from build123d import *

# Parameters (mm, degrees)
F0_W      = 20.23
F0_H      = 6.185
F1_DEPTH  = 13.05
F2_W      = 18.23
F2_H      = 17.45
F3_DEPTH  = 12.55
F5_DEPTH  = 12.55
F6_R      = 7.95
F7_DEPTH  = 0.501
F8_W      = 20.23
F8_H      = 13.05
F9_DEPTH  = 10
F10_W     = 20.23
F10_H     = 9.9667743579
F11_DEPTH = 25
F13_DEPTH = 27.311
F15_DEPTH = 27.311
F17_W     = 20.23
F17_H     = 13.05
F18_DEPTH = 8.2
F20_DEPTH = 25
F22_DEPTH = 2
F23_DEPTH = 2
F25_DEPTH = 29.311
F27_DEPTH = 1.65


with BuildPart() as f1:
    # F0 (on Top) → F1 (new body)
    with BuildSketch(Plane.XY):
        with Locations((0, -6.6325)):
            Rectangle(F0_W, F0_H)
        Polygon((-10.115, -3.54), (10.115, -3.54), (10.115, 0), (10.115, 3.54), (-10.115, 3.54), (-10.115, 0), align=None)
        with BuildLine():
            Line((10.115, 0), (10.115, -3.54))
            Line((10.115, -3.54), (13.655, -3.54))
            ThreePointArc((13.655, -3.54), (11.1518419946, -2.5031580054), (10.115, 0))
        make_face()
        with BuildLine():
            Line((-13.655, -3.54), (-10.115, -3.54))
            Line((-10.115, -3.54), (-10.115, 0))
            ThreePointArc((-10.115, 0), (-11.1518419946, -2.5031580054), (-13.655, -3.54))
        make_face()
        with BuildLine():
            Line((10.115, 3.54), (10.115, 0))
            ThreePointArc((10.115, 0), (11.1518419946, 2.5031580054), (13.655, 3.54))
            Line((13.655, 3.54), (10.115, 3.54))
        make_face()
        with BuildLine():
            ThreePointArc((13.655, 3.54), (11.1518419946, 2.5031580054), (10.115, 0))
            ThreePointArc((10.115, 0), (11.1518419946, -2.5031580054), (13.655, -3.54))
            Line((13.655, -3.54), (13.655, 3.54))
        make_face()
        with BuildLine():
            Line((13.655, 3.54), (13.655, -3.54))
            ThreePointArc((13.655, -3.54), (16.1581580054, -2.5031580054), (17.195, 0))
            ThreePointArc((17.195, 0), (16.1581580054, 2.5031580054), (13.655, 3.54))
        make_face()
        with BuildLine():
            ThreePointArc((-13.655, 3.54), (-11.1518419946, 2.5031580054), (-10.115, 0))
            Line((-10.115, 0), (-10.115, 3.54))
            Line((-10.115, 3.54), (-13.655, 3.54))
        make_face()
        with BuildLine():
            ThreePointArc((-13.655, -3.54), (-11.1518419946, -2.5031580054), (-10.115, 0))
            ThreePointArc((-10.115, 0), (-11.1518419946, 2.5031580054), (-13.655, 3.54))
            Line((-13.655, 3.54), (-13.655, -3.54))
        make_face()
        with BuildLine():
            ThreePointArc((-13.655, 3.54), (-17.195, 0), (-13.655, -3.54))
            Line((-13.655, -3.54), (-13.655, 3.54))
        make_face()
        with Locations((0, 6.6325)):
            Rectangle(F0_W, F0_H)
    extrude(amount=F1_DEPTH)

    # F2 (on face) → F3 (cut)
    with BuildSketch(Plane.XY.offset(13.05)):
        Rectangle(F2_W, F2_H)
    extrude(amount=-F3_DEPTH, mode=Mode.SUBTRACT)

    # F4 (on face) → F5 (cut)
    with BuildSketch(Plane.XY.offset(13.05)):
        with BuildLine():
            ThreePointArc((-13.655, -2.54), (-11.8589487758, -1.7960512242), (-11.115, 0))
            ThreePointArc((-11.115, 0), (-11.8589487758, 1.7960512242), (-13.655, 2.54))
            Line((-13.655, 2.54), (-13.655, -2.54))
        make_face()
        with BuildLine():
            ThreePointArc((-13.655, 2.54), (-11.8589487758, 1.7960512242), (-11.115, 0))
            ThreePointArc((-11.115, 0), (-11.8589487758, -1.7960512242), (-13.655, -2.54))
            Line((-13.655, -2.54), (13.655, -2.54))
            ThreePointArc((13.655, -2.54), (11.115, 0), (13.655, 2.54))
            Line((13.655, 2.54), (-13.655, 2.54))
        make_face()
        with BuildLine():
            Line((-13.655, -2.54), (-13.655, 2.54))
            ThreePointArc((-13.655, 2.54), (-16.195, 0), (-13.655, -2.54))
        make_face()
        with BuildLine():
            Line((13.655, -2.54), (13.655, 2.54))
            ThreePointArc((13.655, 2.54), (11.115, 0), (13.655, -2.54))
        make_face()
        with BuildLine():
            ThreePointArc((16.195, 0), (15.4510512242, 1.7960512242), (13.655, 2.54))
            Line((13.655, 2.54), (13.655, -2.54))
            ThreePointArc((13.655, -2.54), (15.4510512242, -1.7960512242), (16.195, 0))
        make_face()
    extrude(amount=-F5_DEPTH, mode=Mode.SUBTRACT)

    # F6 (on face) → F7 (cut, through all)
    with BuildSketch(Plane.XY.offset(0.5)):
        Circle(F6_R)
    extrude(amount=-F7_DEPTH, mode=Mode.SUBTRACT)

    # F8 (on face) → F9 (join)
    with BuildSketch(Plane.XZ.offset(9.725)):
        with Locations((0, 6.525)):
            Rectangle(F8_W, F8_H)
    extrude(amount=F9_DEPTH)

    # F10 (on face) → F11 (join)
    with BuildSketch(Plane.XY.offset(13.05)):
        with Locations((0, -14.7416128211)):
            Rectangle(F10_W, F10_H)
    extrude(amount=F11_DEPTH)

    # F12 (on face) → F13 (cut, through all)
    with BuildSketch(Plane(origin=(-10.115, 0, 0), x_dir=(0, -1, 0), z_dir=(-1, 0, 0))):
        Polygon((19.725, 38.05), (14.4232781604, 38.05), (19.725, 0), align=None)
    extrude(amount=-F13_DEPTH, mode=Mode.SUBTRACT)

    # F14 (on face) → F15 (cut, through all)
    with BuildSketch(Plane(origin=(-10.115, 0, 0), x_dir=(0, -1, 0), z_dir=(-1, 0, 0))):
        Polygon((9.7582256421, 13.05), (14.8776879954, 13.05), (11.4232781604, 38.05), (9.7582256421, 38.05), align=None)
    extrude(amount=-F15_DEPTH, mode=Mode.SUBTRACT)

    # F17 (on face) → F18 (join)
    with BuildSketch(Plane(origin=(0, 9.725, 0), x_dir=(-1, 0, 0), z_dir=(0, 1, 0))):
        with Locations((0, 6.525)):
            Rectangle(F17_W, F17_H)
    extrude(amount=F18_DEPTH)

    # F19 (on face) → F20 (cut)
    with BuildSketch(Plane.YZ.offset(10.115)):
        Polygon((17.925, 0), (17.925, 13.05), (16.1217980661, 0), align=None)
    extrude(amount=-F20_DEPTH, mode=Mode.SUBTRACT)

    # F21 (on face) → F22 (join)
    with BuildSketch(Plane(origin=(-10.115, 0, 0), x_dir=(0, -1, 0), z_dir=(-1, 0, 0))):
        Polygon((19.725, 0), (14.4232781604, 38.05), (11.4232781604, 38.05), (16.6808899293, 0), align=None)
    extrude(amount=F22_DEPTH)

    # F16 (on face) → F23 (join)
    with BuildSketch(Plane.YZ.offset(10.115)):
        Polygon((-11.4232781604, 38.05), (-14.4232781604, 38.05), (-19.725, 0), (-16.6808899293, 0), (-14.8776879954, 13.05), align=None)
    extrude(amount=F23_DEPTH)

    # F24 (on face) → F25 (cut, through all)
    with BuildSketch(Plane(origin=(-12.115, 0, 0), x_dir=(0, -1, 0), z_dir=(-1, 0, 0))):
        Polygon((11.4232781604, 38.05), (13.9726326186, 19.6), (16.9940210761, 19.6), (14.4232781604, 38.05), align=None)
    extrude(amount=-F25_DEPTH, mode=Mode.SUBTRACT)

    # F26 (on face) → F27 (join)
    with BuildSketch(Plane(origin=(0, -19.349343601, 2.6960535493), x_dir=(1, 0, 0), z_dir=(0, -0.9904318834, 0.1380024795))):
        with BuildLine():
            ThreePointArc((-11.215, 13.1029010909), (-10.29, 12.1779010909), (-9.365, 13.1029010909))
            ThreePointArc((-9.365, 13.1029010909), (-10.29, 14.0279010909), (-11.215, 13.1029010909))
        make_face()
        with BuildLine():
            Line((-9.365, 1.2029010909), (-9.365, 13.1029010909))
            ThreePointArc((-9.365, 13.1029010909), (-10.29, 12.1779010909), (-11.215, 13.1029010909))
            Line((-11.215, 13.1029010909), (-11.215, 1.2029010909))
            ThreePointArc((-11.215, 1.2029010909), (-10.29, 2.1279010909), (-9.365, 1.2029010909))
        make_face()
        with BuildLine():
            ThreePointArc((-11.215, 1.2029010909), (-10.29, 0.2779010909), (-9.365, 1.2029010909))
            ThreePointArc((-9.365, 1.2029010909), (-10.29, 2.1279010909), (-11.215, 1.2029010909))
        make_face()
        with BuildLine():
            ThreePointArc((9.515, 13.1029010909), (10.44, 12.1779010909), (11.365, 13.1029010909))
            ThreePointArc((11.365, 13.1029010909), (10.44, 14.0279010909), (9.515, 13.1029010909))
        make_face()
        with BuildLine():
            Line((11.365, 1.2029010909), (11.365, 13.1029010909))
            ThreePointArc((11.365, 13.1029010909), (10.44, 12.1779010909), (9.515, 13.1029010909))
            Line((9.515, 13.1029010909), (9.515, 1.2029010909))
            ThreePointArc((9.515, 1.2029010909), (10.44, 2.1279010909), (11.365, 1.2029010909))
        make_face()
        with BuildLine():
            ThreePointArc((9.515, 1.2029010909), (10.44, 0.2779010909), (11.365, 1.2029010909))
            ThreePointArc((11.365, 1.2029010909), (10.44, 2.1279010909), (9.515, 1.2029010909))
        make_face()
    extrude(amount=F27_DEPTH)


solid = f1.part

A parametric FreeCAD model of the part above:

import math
import FreeCAD as App
import Part
import Sketcher
Q = App.Units.Quantity


def add_polygon(sketch, points):
    """Adds a closed chain of lines whose ends are joined by coincident constraints."""
    first, n = sketch.GeometryCount, len(points)
    for a, b in zip(points, points[1:] + points[:1]):
        sketch.addGeometry(Part.LineSegment(App.Vector(*a, 0), App.Vector(*b, 0)), False)
    for i in range(n):
        sketch.addConstraint(Sketcher.Constraint("Coincident", first + i, 2, first + (i + 1) % n, 1))

doc = App.newDocument("Part")
params = doc.addObject("Spreadsheet::Sheet", "Params")
for row, (alias, value) in enumerate([
    ("sketch1_radius", "3.54 mm"),
    ("sketch1_width", "20.23 mm"),
    ("sketch1_width2", "3.54 mm"),
    ("pad1_length", "13.05 mm"),
    ("sketch2_width", "18.23 mm"),
    ("sketch2_height", "17.45 mm"),
    ("pocket1_length", "12.55 mm"),
    ("sketch3_radius", "2.54 mm"),
    ("sketch3_width", "27.31 mm"),
    ("pocket2_length", "12.55 mm"),
    ("sketch4_diameter", "15.9 mm"),
    ("sketch5_width", "20.23 mm"),
    ("sketch5_height", "13.05 mm"),
    ("pad2_length", "10 mm"),
    ("sketch6_width", "20.23 mm"),
    ("pad3_length", "25 mm"),
    ("sketch7_height", "38.05 mm"),
    ("sketch8_height", "25 mm"),
    ("sketch9_width", "20.23 mm"),
    ("sketch9_height", "13.05 mm"),
    ("pad4_length", "8.2 mm"),
    ("sketch10_height", "13.05 mm"),
    ("pocket6_length", "25 mm"),
    ("sketch11_width", "3 mm"),
    ("pad5_length", "2 mm"),
    ("sketch12_width", "3 mm"),
    ("pad6_length", "2 mm"),
    ("sketch13_width", "3 mm"),
    ("sketch14_height", "11.9 mm"),
    ("pad7_length", "1.65 mm"),
], start=1):
    params.set(f"A{row}", alias)
    params.set(f"B{row}", "=" + value)
    params.setAlias(f"B{row}", alias)

body = doc.addObject("PartDesign::Body", "Body")

# Sketch on XY plane
sketch1 = body.newObject("Sketcher::SketchObject", "Sketch")
sketch1.AttachmentSupport = (doc.getObject("XY_Plane"), [""])
sketch1.MapMode = "FlatFace"
sketch1.addGeometry(Part.LineSegment(App.Vector(-10.1, -9.7, 0), App.Vector(10.1, -9.7, 0)), False)
sketch1.addGeometry(Part.LineSegment(App.Vector(10.1, -9.7, 0), App.Vector(10.1, -3.5, 0)), False)
sketch1.addGeometry(Part.LineSegment(App.Vector(10.1, -3.5, 0), App.Vector(13.7, -3.5, 0)), False)
sketch1.addGeometry(Part.ArcOfCircle(Part.Circle(App.Vector(13.7, 0, 0), App.Vector(0, 0, 1), 3.5), math.radians(-90), math.radians(90)), False)
sketch1.addGeometry(Part.LineSegment(App.Vector(13.7, 3.5, 0), App.Vector(10.1, 3.5, 0)), False)
sketch1.addGeometry(Part.LineSegment(App.Vector(10.1, 3.5, 0), App.Vector(10.1, 9.7, 0)), False)
sketch1.addGeometry(Part.LineSegment(App.Vector(10.1, 9.7, 0), App.Vector(-10.1, 9.7, 0)), False)
sketch1.addGeometry(Part.LineSegment(App.Vector(-10.1, 9.7, 0), App.Vector(-10.1, 3.5, 0)), False)
sketch1.addGeometry(Part.LineSegment(App.Vector(-10.1, 3.5, 0), App.Vector(-13.7, 3.5, 0)), False)
sketch1.addGeometry(Part.ArcOfCircle(Part.Circle(App.Vector(-13.7, 0, 0), App.Vector(0, 0, 1), 3.5), math.radians(90), math.radians(270)), False)
sketch1.addGeometry(Part.LineSegment(App.Vector(-13.7, -3.5, 0), App.Vector(-10.1, -3.5, 0)), False)
sketch1.addGeometry(Part.LineSegment(App.Vector(-10.1, -3.5, 0), App.Vector(-10.1, -9.7, 0)), False)
sketch1.addConstraint(Sketcher.Constraint("Coincident", 0, 2, 1, 1))
sketch1.addConstraint(Sketcher.Constraint("Coincident", 1, 2, 2, 1))
sketch1.addConstraint(Sketcher.Constraint("Tangent", 2, 2, 3, 1))
sketch1.addConstraint(Sketcher.Constraint("Tangent", 3, 2, 4, 1))
sketch1.addConstraint(Sketcher.Constraint("Coincident", 4, 2, 5, 1))
sketch1.addConstraint(Sketcher.Constraint("Coincident", 5, 2, 6, 1))
sketch1.addConstraint(Sketcher.Constraint("Coincident", 6, 2, 7, 1))
sketch1.addConstraint(Sketcher.Constraint("Coincident", 7, 2, 8, 1))
sketch1.addConstraint(Sketcher.Constraint("Tangent", 8, 2, 9, 1))
sketch1.addConstraint(Sketcher.Constraint("Tangent", 9, 2, 10, 1))
sketch1.addConstraint(Sketcher.Constraint("Coincident", 10, 2, 11, 1))
sketch1.addConstraint(Sketcher.Constraint("Coincident", 11, 2, 0, 1))
sketch1.addConstraint(Sketcher.Constraint("Horizontal", 0))
sketch1.addConstraint(Sketcher.Constraint("Vertical", 1))
sketch1.addConstraint(Sketcher.Constraint("Horizontal", 2))
sketch1.addConstraint(Sketcher.Constraint("Horizontal", 4))
sketch1.addConstraint(Sketcher.Constraint("Vertical", 5))
sketch1.addConstraint(Sketcher.Constraint("Horizontal", 6))
sketch1.addConstraint(Sketcher.Constraint("Vertical", 7))
sketch1.addConstraint(Sketcher.Constraint("Horizontal", 8))
sketch1.addConstraint(Sketcher.Constraint("Horizontal", 10))
sketch1.addConstraint(Sketcher.Constraint("Vertical", 11))
sketch1.addConstraint(Sketcher.Constraint("Equal", 3, 9))
sketch1.addConstraint(Sketcher.Constraint("Symmetric", 3, 3, 9, 3, -1, 1))
sketch1.addConstraint(Sketcher.Constraint("Symmetric", 0, 2, 6, 2, -1, 1))
sketch1.addConstraint(Sketcher.Constraint("Symmetric", 4, 2, 7, 2, -2))
sketch1.addConstraint(Sketcher.Constraint("Vertical", 7, 2, 10, 2))
sketch1.addConstraint(Sketcher.Constraint("Radius", 3, Q("3.54 mm")))
sketch1.addConstraint(Sketcher.Constraint("DistanceX", 0, 1, 0, 2, Q("20.23 mm")))
sketch1.addConstraint(Sketcher.Constraint("DistanceX", 2, 1, 2, 2, Q("3.54 mm")))
sketch1.addConstraint(Sketcher.Constraint("DistanceY", 1, 1, 1, 2, Q("6.185 mm")))
sketch1.setExpression("Constraints[27]", "Params.sketch1_radius")
sketch1.setExpression("Constraints[28]", "Params.sketch1_width")
sketch1.setExpression("Constraints[29]", "Params.sketch1_width2")
pad1 = body.newObject("PartDesign::Pad", "Pad")
pad1.Profile = sketch1
pad1.setExpression("Length", "Params.pad1_length")

# Sketch on XY plane
sketch2 = body.newObject("Sketcher::SketchObject", "Sketch001")
sketch2.AttachmentSupport = (doc.getObject("XY_Plane"), [""])
sketch2.MapMode = "FlatFace"
sketch2.AttachmentOffset = App.Placement(App.Vector(0, 0, 13.05), App.Rotation())
add_polygon(sketch2, [(-9, 9), (-9, -9), (9, -9), (9, 9)])  # lines 0-3
sketch2.addConstraint(Sketcher.Constraint("Vertical", 0))
sketch2.addConstraint(Sketcher.Constraint("Horizontal", 1))
sketch2.addConstraint(Sketcher.Constraint("Vertical", 2))
sketch2.addConstraint(Sketcher.Constraint("Horizontal", 3))
sketch2.addConstraint(Sketcher.Constraint("Symmetric", 0, 2, 2, 2, -1, 1))
sketch2.addConstraint(Sketcher.Constraint("DistanceX", 1, 1, 1, 2, Q("18.23 mm")))
sketch2.addConstraint(Sketcher.Constraint("DistanceY", 0, 2, 0, 1, Q("17.45 mm")))
sketch2.setExpression("Constraints[9]", "Params.sketch2_width")
sketch2.setExpression("Constraints[10]", "Params.sketch2_height")
pocket1 = body.newObject("PartDesign::Pocket", "Pocket")
pocket1.Profile = sketch2
pocket1.setExpression("Length", "Params.pocket1_length")

# Sketch on XY plane
sketch3 = body.newObject("Sketcher::SketchObject", "Sketch002")
sketch3.AttachmentSupport = (doc.getObject("XY_Plane"), [""])
sketch3.MapMode = "FlatFace"
sketch3.AttachmentOffset = App.Placement(App.Vector(0, 0, 13.05), App.Rotation())
sketch3.addGeometry(Part.LineSegment(App.Vector(-13.7, -2.5, 0), App.Vector(13.7, -2.5, 0)), False)
sketch3.addGeometry(Part.ArcOfCircle(Part.Circle(App.Vector(13.7, 0, 0), App.Vector(0, 0, 1), 2.5), math.radians(-90), math.radians(0)), False)
sketch3.addGeometry(Part.ArcOfCircle(Part.Circle(App.Vector(13.7, 0, 0), App.Vector(0, 0, 1), 2.5), math.radians(0), math.radians(90)), False)
sketch3.addGeometry(Part.LineSegment(App.Vector(13.7, 2.5, 0), App.Vector(-13.7, 2.5, 0)), False)
sketch3.addGeometry(Part.ArcOfCircle(Part.Circle(App.Vector(-13.7, 0, 0), App.Vector(0, 0, 1), 2.5), math.radians(90), math.radians(270)), False)
sketch3.addConstraint(Sketcher.Constraint("Tangent", 0, 2, 1, 1))
sketch3.addConstraint(Sketcher.Constraint("Tangent", 1, 2, 2, 1))
sketch3.addConstraint(Sketcher.Constraint("Tangent", 2, 2, 3, 1))
sketch3.addConstraint(Sketcher.Constraint("Tangent", 3, 2, 4, 1))
sketch3.addConstraint(Sketcher.Constraint("Tangent", 4, 2, 0, 1))
sketch3.addConstraint(Sketcher.Constraint("Horizontal", 0))
sketch3.addConstraint(Sketcher.Constraint("Horizontal", 3))
sketch3.addConstraint(Sketcher.Constraint("Equal", 1, 2))
sketch3.addConstraint(Sketcher.Constraint("Symmetric", 1, 3, 4, 3, -1, 1))
sketch3.addConstraint(Sketcher.Constraint("PointOnObject", 1, 2, -1))
sketch3.addConstraint(Sketcher.Constraint("Radius", 1, Q("2.54 mm")))
sketch3.addConstraint(Sketcher.Constraint("DistanceX", 0, 1, 0, 2, Q("27.31 mm")))
sketch3.setExpression("Constraints[10]", "Params.sketch3_radius")
sketch3.setExpression("Constraints[11]", "Params.sketch3_width")
pocket2 = body.newObject("PartDesign::Pocket", "Pocket001")
pocket2.Profile = sketch3
pocket2.setExpression("Length", "Params.pocket2_length")

# Sketch on XY plane
sketch4 = body.newObject("Sketcher::SketchObject", "Sketch003")
sketch4.AttachmentSupport = (doc.getObject("XY_Plane"), [""])
sketch4.MapMode = "FlatFace"
sketch4.AttachmentOffset = App.Placement(App.Vector(0, 0, 0.5), App.Rotation())
sketch4.addGeometry(Part.Circle(App.Vector(0, 0, 0), App.Vector(0, 0, 1), 8), False)
sketch4.addConstraint(Sketcher.Constraint("Coincident", 0, 3, -1, 1))
sketch4.addConstraint(Sketcher.Constraint("Diameter", 0, Q("15.9 mm")))
sketch4.setExpression("Constraints[1]", "Params.sketch4_diameter")
pocket3 = body.newObject("PartDesign::Pocket", "Pocket002")
pocket3.Profile = sketch4
pocket3.Type = "ThroughAll"

# Sketch on XZ plane
sketch5 = body.newObject("Sketcher::SketchObject", "Sketch004")
sketch5.AttachmentSupport = (doc.getObject("XZ_Plane"), [""])
sketch5.MapMode = "FlatFace"
sketch5.AttachmentOffset = App.Placement(App.Vector(0, 0, 9.725), App.Rotation())
add_polygon(sketch5, [(-10, 13), (-10, 0), (10, 0), (10, 13)])  # lines 0-3
sketch5.addConstraint(Sketcher.Constraint("Vertical", 0))
sketch5.addConstraint(Sketcher.Constraint("Horizontal", 1))
sketch5.addConstraint(Sketcher.Constraint("Vertical", 2))
sketch5.addConstraint(Sketcher.Constraint("Horizontal", 3))
sketch5.addConstraint(Sketcher.Constraint("Symmetric", 0, 2, 1, 2, -1, 1))
sketch5.addConstraint(Sketcher.Constraint("DistanceX", 1, 1, 1, 2, Q("20.23 mm")))
sketch5.addConstraint(Sketcher.Constraint("DistanceY", 0, 2, 0, 1, Q("13.05 mm")))
sketch5.setExpression("Constraints[9]", "Params.sketch5_width")
sketch5.setExpression("Constraints[10]", "Params.sketch5_height")
pad2 = body.newObject("PartDesign::Pad", "Pad001")
pad2.Profile = sketch5
pad2.setExpression("Length", "Params.pad2_length")

# Sketch on XY plane
sketch6 = body.newObject("Sketcher::SketchObject", "Sketch005")
sketch6.AttachmentSupport = (doc.getObject("XY_Plane"), [""])
sketch6.MapMode = "FlatFace"
sketch6.AttachmentOffset = App.Placement(App.Vector(0, 0, 13.05), App.Rotation())
add_polygon(sketch6, [(-10, -10), (-10, -20), (10, -20), (10, -10)])  # lines 0-3
sketch6.addConstraint(Sketcher.Constraint("Vertical", 0))
sketch6.addConstraint(Sketcher.Constraint("Horizontal", 1))
sketch6.addConstraint(Sketcher.Constraint("Vertical", 2))
sketch6.addConstraint(Sketcher.Constraint("Horizontal", 3))
sketch6.addConstraint(Sketcher.Constraint("DistanceX", 1, 1, 1, 2, Q("20.23 mm")))
sketch6.addConstraint(Sketcher.Constraint("DistanceX", 0, 2, -1, 1, Q("10.115 mm")))
sketch6.addConstraint(Sketcher.Constraint("DistanceY", 0, 2, -1, 1, Q("19.725 mm")))
sketch6.addConstraint(Sketcher.Constraint("DistanceY", 0, 2, 0, 1, Q("9.966774 mm")))
sketch6.setExpression("Constraints[8]", "Params.sketch6_width")
pad3 = body.newObject("PartDesign::Pad", "Pad002")
pad3.Profile = sketch6
pad3.setExpression("Length", "Params.pad3_length")

# Sketch on YZ plane
sketch7 = body.newObject("Sketcher::SketchObject", "Sketch006")
sketch7.AttachmentSupport = (doc.getObject("YZ_Plane"), [""])
sketch7.MapMode = "FlatFace"
sketch7.AttachmentOffset = App.Placement(App.Vector(0, 0, -10.115), App.Rotation())
add_polygon(sketch7, [(-20, 38), (-14, 38), (-20, 0)])  # lines 0-2
sketch7.addConstraint(Sketcher.Constraint("Horizontal", 0))
sketch7.addConstraint(Sketcher.Constraint("Vertical", 2))
sketch7.addConstraint(Sketcher.Constraint("PointOnObject", 1, 2, -1))
sketch7.addConstraint(Sketcher.Constraint("DistanceY", 2, 1, 2, 2, Q("38.05 mm")))
sketch7.addConstraint(Sketcher.Constraint("DistanceX", 1, 2, -1, 1, Q("19.725 mm")))
sketch7.addConstraint(Sketcher.Constraint("DistanceX", 0, 1, 0, 2, Q("5.301722 mm")))
sketch7.setExpression("Constraints[6]", "Params.sketch7_height")
pocket4 = body.newObject("PartDesign::Pocket", "Pocket003")
pocket4.Profile = sketch7
pocket4.Type = "ThroughAll"
pocket4.Reversed = True

# Sketch on YZ plane
sketch8 = body.newObject("Sketcher::SketchObject", "Sketch007")
sketch8.AttachmentSupport = (doc.getObject("YZ_Plane"), [""])
sketch8.MapMode = "FlatFace"
sketch8.AttachmentOffset = App.Placement(App.Vector(0, 0, -10.115), App.Rotation())
add_polygon(sketch8, [(-9.8, 13.1), (-14.9, 13.1), (-11.4, 38), (-9.8, 38)])  # lines 0-3
sketch8.addConstraint(Sketcher.Constraint("Horizontal", 0))
sketch8.addConstraint(Sketcher.Constraint("Horizontal", 2))
sketch8.addConstraint(Sketcher.Constraint("Vertical", 3))
sketch8.addConstraint(Sketcher.Constraint("DistanceY", 3, 2, 3, 1, Q("25 mm")))
sketch8.addConstraint(Sketcher.Constraint("DistanceY", -1, 1, 0, 2, Q("13.05 mm")))
sketch8.addConstraint(Sketcher.Constraint("Distance", 1, Q("25.237531 mm")))
sketch8.addConstraint(Sketcher.Constraint("DistanceX", 0, 2, 0, 1, Q("5.119462 mm")))
sketch8.addConstraint(Sketcher.Constraint("DistanceX", 1, 2, -1, 1, Q("11.423278 mm")))
sketch8.setExpression("Constraints[7]", "Params.sketch8_height")
pocket5 = body.newObject("PartDesign::Pocket", "Pocket004")
pocket5.Profile = sketch8
pocket5.Type = "ThroughAll"
pocket5.Reversed = True

# Sketch on XZ plane
sketch9 = body.newObject("Sketcher::SketchObject", "Sketch008")
sketch9.AttachmentSupport = (doc.getObject("XZ_Plane"), [""])
sketch9.MapMode = "FlatFace"
sketch9.AttachmentOffset = App.Placement(App.Vector(0, 0, -9.725), App.Rotation())
add_polygon(sketch9, [(10, 13), (10, 0), (-10, 0), (-10, 13)])  # lines 0-3
sketch9.addConstraint(Sketcher.Constraint("Vertical", 0))
sketch9.addConstraint(Sketcher.Constraint("Horizontal", 1))
sketch9.addConstraint(Sketcher.Constraint("Vertical", 2))
sketch9.addConstraint(Sketcher.Constraint("Horizontal", 3))
sketch9.addConstraint(Sketcher.Constraint("Symmetric", 0, 2, 1, 2, -1, 1))
sketch9.addConstraint(Sketcher.Constraint("DistanceX", 1, 2, 1, 1, Q("20.23 mm")))
sketch9.addConstraint(Sketcher.Constraint("DistanceY", 0, 2, 0, 1, Q("13.05 mm")))
sketch9.setExpression("Constraints[9]", "Params.sketch9_width")
sketch9.setExpression("Constraints[10]", "Params.sketch9_height")
pad4 = body.newObject("PartDesign::Pad", "Pad003")
pad4.Profile = sketch9
pad4.setExpression("Length", "Params.pad4_length")
pad4.Reversed = True

# Sketch on YZ plane
sketch10 = body.newObject("Sketcher::SketchObject", "Sketch009")
sketch10.AttachmentSupport = (doc.getObject("YZ_Plane"), [""])
sketch10.MapMode = "FlatFace"
sketch10.AttachmentOffset = App.Placement(App.Vector(0, 0, 10.115), App.Rotation())
add_polygon(sketch10, [(17.9, 0), (17.9, 13.1), (16.1, 0)])  # lines 0-2
sketch10.addConstraint(Sketcher.Constraint("Vertical", 0))
sketch10.addConstraint(Sketcher.Constraint("Horizontal", 2))
sketch10.addConstraint(Sketcher.Constraint("PointOnObject", 1, 2, -1))
sketch10.addConstraint(Sketcher.Constraint("DistanceY", 0, 1, 0, 2, Q("13.05 mm")))
sketch10.addConstraint(Sketcher.Constraint("DistanceX", 2, 1, 2, 2, Q("1.803202 mm")))
sketch10.addConstraint(Sketcher.Constraint("DistanceX", -1, 1, 0, 2, Q("17.925 mm")))
sketch10.setExpression("Constraints[6]", "Params.sketch10_height")
pocket6 = body.newObject("PartDesign::Pocket", "Pocket005")
pocket6.Profile = sketch10
pocket6.setExpression("Length", "Params.pocket6_length")

# Sketch on YZ plane
sketch11 = body.newObject("Sketcher::SketchObject", "Sketch010")
sketch11.AttachmentSupport = (doc.getObject("YZ_Plane"), [""])
sketch11.MapMode = "FlatFace"
sketch11.AttachmentOffset = App.Placement(App.Vector(0, 0, -10.115), App.Rotation())
add_polygon(sketch11, [(-19.7, 0), (-14.4, 38), (-11.4, 38), (-16.7, 0)])  # lines 0-3
sketch11.addConstraint(Sketcher.Constraint("Horizontal", 1))
sketch11.addConstraint(Sketcher.Constraint("Horizontal", 3))
sketch11.addConstraint(Sketcher.Constraint("PointOnObject", 2, 2, -1))
sketch11.addConstraint(Sketcher.Constraint("DistanceX", 1, 1, 1, 2, Q("3 mm")))
sketch11.addConstraint(Sketcher.Constraint("DistanceY", -1, 1, 0, 2, Q("38.05 mm")))
sketch11.addConstraint(Sketcher.Constraint("DistanceX", 3, 2, -1, 1, Q("19.725 mm")))
sketch11.addConstraint(Sketcher.Constraint("DistanceX", 3, 2, 3, 1, Q("3.04411 mm")))
sketch11.addConstraint(Sketcher.Constraint("Distance", 2, Q("38.411521 mm")))
sketch11.setExpression("Constraints[7]", "Params.sketch11_width")
pad5 = body.newObject("PartDesign::Pad", "Pad004")
pad5.Profile = sketch11
pad5.setExpression("Length", "Params.pad5_length")
pad5.Reversed = True

# Sketch on YZ plane
sketch12 = body.newObject("Sketcher::SketchObject", "Sketch011")
sketch12.AttachmentSupport = (doc.getObject("YZ_Plane"), [""])
sketch12.MapMode = "FlatFace"
sketch12.AttachmentOffset = App.Placement(App.Vector(0, 0, 10.115), App.Rotation())
add_polygon(sketch12, [(-11.4, 38), (-14.4, 38), (-19.7, 0), (-16.7, 0), (-14.9, 13.1)])  # lines 0-4
sketch12.addConstraint(Sketcher.Constraint("Horizontal", 0))
sketch12.addConstraint(Sketcher.Constraint("Horizontal", 2))
sketch12.addConstraint(Sketcher.Constraint("PointOnObject", 1, 2, -1))
sketch12.addConstraint(Sketcher.Constraint("Parallel", 3, 4))
sketch12.addConstraint(Sketcher.Constraint("DistanceX", 0, 2, 0, 1, Q("3 mm")))
sketch12.addConstraint(Sketcher.Constraint("DistanceY", 3, 2, 0, 2, Q("25 mm")))
sketch12.addConstraint(Sketcher.Constraint("DistanceY", -1, 1, 0, 2, Q("38.05 mm")))
sketch12.addConstraint(Sketcher.Constraint("DistanceX", 1, 2, -1, 1, Q("19.725 mm")))
sketch12.addConstraint(Sketcher.Constraint("DistanceX", 2, 1, 2, 2, Q("3.04411 mm")))
sketch12.addConstraint(Sketcher.Constraint("DistanceX", 2, 2, 3, 2, Q("1.803202 mm")))
sketch12.setExpression("Constraints[9]", "Params.sketch12_width")
pad6 = body.newObject("PartDesign::Pad", "Pad005")
pad6.Profile = sketch12
pad6.setExpression("Length", "Params.pad6_length")

# Sketch on YZ plane
sketch13 = body.newObject("Sketcher::SketchObject", "Sketch012")
sketch13.AttachmentSupport = (doc.getObject("YZ_Plane"), [""])
sketch13.MapMode = "FlatFace"
sketch13.AttachmentOffset = App.Placement(App.Vector(0, 0, -12.115), App.Rotation())
add_polygon(sketch13, [(-11.4, 38), (-14, 19.6), (-17, 19.6), (-14.4, 38)])  # lines 0-3
sketch13.addConstraint(Sketcher.Constraint("Horizontal", 1))
sketch13.addConstraint(Sketcher.Constraint("Horizontal", 3))
sketch13.addConstraint(Sketcher.Constraint("DistanceX", 3, 1, 3, 2, Q("3 mm")))
sketch13.addConstraint(Sketcher.Constraint("DistanceY", -1, 1, 0, 2, Q("19.6 mm")))
sketch13.addConstraint(Sketcher.Constraint("DistanceY", -1, 1, 2, 2, Q("38.05 mm")))
sketch13.addConstraint(Sketcher.Constraint("DistanceX", 1, 2, 1, 1, Q("3.021388 mm")))
sketch13.addConstraint(Sketcher.Constraint("DistanceX", 1, 2, -1, 1, Q("16.994021 mm")))
sketch13.addConstraint(Sketcher.Constraint("DistanceX", 2, 2, -1, 1, Q("14.423278 mm")))
sketch13.setExpression("Constraints[6]", "Params.sketch13_width")
pocket7 = body.newObject("PartDesign::Pocket", "Pocket006")
pocket7.Profile = sketch13
pocket7.Type = "ThroughAll"
pocket7.Reversed = True

# Sketch on an angled plane
sketch14 = body.newObject("Sketcher::SketchObject", "Sketch013")
sketch14.Placement = App.Placement(App.Vector(0, -19.349344, 2.696054), App.Rotation(App.Vector(1, 0, 0), App.Vector(0, 0.138002479, 0.990431883), App.Vector(0, -0.990431883, 0.138002479), "ZXY"))
sketch14.addGeometry(Part.ArcOfCircle(Part.Circle(App.Vector(-10.3, 13.1, 0), App.Vector(0, 0, 1), 0.9), math.radians(0), math.radians(180)), False)
sketch14.addGeometry(Part.LineSegment(App.Vector(-11.2, 13.1, 0), App.Vector(-11.2, 1.2, 0)), False)
sketch14.addGeometry(Part.ArcOfCircle(Part.Circle(App.Vector(-10.3, 1.2, 0), App.Vector(0, 0, 1), 0.9), math.radians(180), math.radians(360)), False)
sketch14.addGeometry(Part.LineSegment(App.Vector(-9.4, 1.2, 0), App.Vector(-9.4, 13.1, 0)), False)
sketch14.addGeometry(Part.ArcOfCircle(Part.Circle(App.Vector(10.4, 13.1, 0), App.Vector(0, 0, 1), 0.9), math.radians(0), math.radians(180)), False)
sketch14.addGeometry(Part.LineSegment(App.Vector(9.5, 13.1, 0), App.Vector(9.5, 1.2, 0)), False)
sketch14.addGeometry(Part.ArcOfCircle(Part.Circle(App.Vector(10.4, 1.2, 0), App.Vector(0, 0, 1), 0.9), math.radians(180), math.radians(360)), False)
sketch14.addGeometry(Part.LineSegment(App.Vector(11.4, 1.2, 0), App.Vector(11.4, 13.1, 0)), False)
sketch14.addConstraint(Sketcher.Constraint("Tangent", 0, 2, 1, 1))
sketch14.addConstraint(Sketcher.Constraint("Tangent", 1, 2, 2, 1))
sketch14.addConstraint(Sketcher.Constraint("Tangent", 2, 2, 3, 1))
sketch14.addConstraint(Sketcher.Constraint("Tangent", 3, 2, 0, 1))
sketch14.addConstraint(Sketcher.Constraint("Tangent", 4, 2, 5, 1))
sketch14.addConstraint(Sketcher.Constraint("Tangent", 5, 2, 6, 1))
sketch14.addConstraint(Sketcher.Constraint("Tangent", 6, 2, 7, 1))
sketch14.addConstraint(Sketcher.Constraint("Tangent", 7, 2, 4, 1))
sketch14.addConstraint(Sketcher.Constraint("Vertical", 1))
sketch14.addConstraint(Sketcher.Constraint("Vertical", 3))
sketch14.addConstraint(Sketcher.Constraint("Vertical", 5))
sketch14.addConstraint(Sketcher.Constraint("Vertical", 7))
sketch14.addConstraint(Sketcher.Constraint("Equal", 2, 4))
sketch14.addConstraint(Sketcher.Constraint("Horizontal", 0, 3, 4, 3))
sketch14.addConstraint(Sketcher.Constraint("Horizontal", 2, 3, 6, 3))
sketch14.addConstraint(Sketcher.Constraint("DistanceY", 1, 2, 1, 1, Q("11.9 mm")))
sketch14.addConstraint(Sketcher.Constraint("Radius", 0, Q("0.925 mm")))
sketch14.addConstraint(Sketcher.Constraint("DistanceX", 0, 3, -1, 1, Q("10.29 mm")))
sketch14.addConstraint(Sketcher.Constraint("DistanceX", -1, 1, 4, 3, Q("10.44 mm")))
sketch14.addConstraint(Sketcher.Constraint("DistanceY", -1, 1, 0, 3, Q("13.102901 mm")))
sketch14.setExpression("Constraints[15]", "Params.sketch14_height")
pad7 = body.newObject("PartDesign::Pad", "Pad006")
pad7.Profile = sketch14
pad7.setExpression("Length", "Params.pad7_length")

doc.recompute()
